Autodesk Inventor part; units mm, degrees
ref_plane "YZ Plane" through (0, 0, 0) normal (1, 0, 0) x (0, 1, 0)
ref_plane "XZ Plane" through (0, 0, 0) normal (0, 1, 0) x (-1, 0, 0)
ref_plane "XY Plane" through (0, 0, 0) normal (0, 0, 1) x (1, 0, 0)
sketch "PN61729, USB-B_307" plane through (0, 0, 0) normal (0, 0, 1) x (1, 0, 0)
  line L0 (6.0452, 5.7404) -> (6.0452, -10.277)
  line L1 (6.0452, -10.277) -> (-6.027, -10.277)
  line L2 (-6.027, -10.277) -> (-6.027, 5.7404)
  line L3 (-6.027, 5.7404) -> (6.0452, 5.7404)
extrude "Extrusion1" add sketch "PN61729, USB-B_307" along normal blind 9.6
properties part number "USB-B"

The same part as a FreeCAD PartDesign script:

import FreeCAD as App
import Part
import Sketcher
Q = App.Units.Quantity

doc = App.newDocument("Part")
body = doc.addObject("PartDesign::Body", "Body")

# Sketch on XY plane
sketch1 = body.newObject("Sketcher::SketchObject", "Sketch")
sketch1.AttachmentSupport = (doc.getObject("XY_Plane"), [""])
sketch1.MapMode = "FlatFace"
sketch1.addGeometry([
    Part.LineSegment(App.Vector(6.0452, -10.277, 0), App.Vector(6.0452, 5.7404, 0)),
    Part.LineSegment(App.Vector(6.0452, 5.7404, 0), App.Vector(-6.027, 5.7404, 0)),
    Part.LineSegment(App.Vector(-6.027, 5.7404, 0), App.Vector(-6.027, -10.277, 0)),
    Part.LineSegment(App.Vector(-6.027, -10.277, 0), App.Vector(6.0452, -10.277, 0)),
], False)
sketch1.addConstraint([
    Sketcher.Constraint("Coincident", 0, 2, 1, 1),
    Sketcher.Constraint("Coincident", 1, 2, 2, 1),
    Sketcher.Constraint("Coincident", 2, 2, 3, 1),
    Sketcher.Constraint("Coincident", 3, 2, 0, 1),
    Sketcher.Constraint("Vertical", 0),
    Sketcher.Constraint("Horizontal", 1),
    Sketcher.Constraint("Vertical", 2),
    Sketcher.Constraint("Horizontal", 3),
    Sketcher.Constraint("DistanceX", 1, 2, 1, 1, Q("12.0722 mm")),
    Sketcher.Constraint("DistanceY", 0, 1, 0, 2, Q("16.0174 mm")),
    Sketcher.Constraint("DistanceX", 1, 2, -1, 1, Q("6.027 mm")),
    Sketcher.Constraint("DistanceY", 2, 2, -1, 1, Q("10.277 mm")),
])
pad1 = body.newObject("PartDesign::Pad", "Pad")
pad1.Profile = sketch1
pad1.Length = 9.6

doc.recompute()
